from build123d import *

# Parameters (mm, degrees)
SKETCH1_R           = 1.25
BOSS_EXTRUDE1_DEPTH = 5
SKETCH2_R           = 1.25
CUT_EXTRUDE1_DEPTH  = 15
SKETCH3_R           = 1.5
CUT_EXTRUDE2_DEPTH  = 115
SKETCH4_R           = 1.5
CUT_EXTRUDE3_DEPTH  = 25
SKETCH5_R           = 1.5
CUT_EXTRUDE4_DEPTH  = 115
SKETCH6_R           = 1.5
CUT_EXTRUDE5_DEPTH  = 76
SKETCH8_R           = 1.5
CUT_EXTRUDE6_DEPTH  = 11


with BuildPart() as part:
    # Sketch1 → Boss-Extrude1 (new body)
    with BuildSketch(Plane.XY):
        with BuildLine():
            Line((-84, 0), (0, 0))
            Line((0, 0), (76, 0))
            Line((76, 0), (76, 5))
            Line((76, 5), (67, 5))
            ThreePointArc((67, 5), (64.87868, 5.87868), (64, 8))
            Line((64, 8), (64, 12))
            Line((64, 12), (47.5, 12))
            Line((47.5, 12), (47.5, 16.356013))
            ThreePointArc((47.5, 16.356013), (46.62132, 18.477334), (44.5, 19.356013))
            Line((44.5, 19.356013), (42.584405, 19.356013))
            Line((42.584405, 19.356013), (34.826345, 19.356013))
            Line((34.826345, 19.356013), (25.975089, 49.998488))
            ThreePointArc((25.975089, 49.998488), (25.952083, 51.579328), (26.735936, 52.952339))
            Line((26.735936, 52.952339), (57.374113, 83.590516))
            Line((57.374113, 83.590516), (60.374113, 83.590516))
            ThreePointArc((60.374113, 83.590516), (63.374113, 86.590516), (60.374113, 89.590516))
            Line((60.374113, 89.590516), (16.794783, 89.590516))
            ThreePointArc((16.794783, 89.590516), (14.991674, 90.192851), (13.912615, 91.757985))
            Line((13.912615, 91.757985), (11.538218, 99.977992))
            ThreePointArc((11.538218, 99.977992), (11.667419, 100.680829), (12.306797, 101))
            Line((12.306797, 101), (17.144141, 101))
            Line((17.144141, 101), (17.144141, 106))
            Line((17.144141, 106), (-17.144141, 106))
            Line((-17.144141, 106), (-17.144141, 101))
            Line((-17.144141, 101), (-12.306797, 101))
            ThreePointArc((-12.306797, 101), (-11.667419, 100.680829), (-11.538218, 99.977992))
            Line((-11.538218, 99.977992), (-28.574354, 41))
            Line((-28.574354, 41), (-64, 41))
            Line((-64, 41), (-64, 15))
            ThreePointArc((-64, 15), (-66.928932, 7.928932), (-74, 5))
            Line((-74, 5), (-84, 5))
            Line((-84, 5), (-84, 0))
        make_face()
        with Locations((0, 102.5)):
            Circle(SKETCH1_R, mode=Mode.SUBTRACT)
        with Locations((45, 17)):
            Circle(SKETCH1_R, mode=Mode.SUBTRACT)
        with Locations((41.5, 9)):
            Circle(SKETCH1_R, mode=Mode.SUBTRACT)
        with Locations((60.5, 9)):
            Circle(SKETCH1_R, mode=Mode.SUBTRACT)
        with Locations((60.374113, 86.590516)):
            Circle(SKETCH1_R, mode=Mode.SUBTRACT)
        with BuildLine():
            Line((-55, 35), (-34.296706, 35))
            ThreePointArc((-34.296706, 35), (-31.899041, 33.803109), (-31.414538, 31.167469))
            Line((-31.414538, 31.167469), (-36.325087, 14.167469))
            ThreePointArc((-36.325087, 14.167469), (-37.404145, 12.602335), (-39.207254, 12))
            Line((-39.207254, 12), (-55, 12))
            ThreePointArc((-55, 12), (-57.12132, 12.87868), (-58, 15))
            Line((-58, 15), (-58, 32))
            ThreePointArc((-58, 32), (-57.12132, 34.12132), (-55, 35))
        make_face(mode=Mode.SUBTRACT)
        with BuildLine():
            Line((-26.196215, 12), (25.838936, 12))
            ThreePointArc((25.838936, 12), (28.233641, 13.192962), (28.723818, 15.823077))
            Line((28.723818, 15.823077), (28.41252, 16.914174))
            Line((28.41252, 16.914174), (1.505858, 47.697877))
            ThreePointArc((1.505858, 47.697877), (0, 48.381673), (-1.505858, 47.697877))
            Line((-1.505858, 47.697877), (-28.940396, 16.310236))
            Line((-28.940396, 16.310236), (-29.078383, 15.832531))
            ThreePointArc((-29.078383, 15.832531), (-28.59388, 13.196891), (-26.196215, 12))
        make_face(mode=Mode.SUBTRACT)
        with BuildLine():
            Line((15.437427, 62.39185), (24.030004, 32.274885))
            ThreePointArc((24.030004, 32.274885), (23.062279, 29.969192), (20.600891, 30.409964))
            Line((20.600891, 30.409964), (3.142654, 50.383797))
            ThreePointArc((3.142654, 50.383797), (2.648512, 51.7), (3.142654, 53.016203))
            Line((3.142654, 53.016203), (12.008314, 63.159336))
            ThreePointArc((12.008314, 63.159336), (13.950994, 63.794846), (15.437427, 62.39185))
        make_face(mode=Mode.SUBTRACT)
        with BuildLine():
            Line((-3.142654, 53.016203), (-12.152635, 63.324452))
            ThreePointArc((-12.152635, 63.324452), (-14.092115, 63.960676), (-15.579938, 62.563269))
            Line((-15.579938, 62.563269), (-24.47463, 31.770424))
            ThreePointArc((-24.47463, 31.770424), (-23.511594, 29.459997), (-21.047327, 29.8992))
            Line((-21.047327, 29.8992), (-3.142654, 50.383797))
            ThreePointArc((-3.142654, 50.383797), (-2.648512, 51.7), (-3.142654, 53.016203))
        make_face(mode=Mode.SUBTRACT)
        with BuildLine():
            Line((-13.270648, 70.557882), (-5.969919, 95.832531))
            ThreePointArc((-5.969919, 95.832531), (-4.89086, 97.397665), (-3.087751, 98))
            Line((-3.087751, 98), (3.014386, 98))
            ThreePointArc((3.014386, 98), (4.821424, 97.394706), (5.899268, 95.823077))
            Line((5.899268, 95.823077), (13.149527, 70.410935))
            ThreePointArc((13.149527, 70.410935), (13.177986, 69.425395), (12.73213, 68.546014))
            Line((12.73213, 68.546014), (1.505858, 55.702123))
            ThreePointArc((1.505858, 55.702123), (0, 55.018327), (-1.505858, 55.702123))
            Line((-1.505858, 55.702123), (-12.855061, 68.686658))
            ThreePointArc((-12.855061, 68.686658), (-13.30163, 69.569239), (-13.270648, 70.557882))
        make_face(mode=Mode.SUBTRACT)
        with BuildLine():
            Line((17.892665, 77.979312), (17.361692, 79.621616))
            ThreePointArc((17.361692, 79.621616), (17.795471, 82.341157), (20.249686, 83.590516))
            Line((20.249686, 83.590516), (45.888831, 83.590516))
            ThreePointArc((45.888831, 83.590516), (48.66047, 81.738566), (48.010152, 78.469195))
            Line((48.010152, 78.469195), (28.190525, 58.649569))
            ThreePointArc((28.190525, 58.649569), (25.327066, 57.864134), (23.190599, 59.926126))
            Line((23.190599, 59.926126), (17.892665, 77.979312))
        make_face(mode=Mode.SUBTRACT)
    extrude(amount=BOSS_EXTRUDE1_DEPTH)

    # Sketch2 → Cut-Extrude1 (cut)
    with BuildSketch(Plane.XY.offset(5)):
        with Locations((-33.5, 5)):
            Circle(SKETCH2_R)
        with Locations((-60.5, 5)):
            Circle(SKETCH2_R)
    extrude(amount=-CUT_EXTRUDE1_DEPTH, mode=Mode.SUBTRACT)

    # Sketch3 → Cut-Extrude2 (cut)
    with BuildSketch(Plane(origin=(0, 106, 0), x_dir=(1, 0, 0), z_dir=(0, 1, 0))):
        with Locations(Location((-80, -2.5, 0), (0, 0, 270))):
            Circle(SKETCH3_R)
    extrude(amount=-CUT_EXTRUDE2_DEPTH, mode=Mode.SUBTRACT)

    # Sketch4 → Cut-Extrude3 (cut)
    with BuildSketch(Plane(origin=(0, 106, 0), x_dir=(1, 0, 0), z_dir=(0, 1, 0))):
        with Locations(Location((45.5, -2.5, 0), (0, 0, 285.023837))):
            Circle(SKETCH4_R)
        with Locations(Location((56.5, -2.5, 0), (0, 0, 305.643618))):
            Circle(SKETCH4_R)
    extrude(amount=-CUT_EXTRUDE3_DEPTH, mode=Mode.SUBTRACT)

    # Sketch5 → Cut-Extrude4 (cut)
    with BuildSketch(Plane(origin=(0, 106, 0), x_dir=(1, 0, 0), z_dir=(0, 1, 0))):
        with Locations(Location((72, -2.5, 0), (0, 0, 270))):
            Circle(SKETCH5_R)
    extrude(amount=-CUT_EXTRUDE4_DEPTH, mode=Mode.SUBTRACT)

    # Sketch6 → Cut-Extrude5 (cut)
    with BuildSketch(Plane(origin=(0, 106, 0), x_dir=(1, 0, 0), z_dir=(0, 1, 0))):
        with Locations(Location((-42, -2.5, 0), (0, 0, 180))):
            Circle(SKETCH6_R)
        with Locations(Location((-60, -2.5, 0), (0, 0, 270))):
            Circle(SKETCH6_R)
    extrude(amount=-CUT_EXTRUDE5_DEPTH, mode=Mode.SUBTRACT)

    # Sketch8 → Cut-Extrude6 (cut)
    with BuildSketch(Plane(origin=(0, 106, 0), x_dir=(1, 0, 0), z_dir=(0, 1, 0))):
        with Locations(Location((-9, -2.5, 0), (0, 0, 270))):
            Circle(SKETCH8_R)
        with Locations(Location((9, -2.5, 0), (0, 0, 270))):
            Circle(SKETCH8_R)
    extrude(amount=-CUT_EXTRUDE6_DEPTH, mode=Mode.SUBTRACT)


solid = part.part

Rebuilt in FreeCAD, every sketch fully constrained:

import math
import FreeCAD as App
import Part
import Sketcher

V = App.Vector

doc = App.newDocument("Part")
body = doc.addObject("PartDesign::Body", "Body")

sketch1 = body.newObject("Sketcher::SketchObject", "Sketch")
sketch1.AttachmentSupport = (doc.getObject("XY_Plane"), [""])
sketch1.MapMode = "FlatFace"
sketch1.addGeometry([
    Part.LineSegment(V(-84, 0, 0), V(76, 0, 0)),
    Part.LineSegment(V(76, 0, 0), V(76, 5, 0)),
    Part.LineSegment(V(76, 5, 0), V(67, 5, 0)),
    Part.ArcOfCircle(Part.Circle(V(67.000001, 8.000001, 0), V(0, 0, 1), 3.000001), math.radians(-179.999978), math.radians(-90.000022)),
    Part.LineSegment(V(64, 8, 0), V(64, 12, 0)),
    Part.LineSegment(V(64, 12, 0), V(47.5, 12, 0)),
    Part.LineSegment(V(47.5, 12, 0), V(47.5, 16.356013, 0)),
    Part.ArcOfCircle(Part.Circle(V(44.500001, 16.356014, 0), V(0, 0, 1), 2.999999), math.radians(-0.00001), math.radians(90.00001)),
    Part.LineSegment(V(44.5, 19.356013, 0), V(34.826345, 19.356013, 0)),
    Part.LineSegment(V(34.826345, 19.356013, 0), V(25.975089, 49.998488, 0)),
    Part.ArcOfCircle(Part.Circle(V(28.857255, 50.83102, 0), V(0, 0, 1), 2.999999), math.radians(134.999998), math.radians(196.11169)),
    Part.LineSegment(V(26.735936, 52.952339, 0), V(57.374113, 83.590516, 0)),
    Part.LineSegment(V(57.374113, 83.590516, 0), V(60.374113, 83.590516, 0)),
    Part.ArcOfCircle(Part.Circle(V(60.374113, 86.590516, 0), V(0, 0, 1), 3), math.radians(-90), math.radians(90)),
    Part.LineSegment(V(60.374113, 89.590516, 0), V(16.794783, 89.590516, 0)),
    Part.ArcOfCircle(Part.Circle(V(16.794783, 92.590516, 0), V(0, 0, 1), 3), math.radians(-163.888324), math.radians(-90.000005)),
    Part.LineSegment(V(13.912615, 91.757985, 0), V(11.538218, 99.977992, 0)),
    Part.ArcOfCircle(Part.Circle(V(12.306797, 100.2, 0), V(0, 0, 1), 0.8), math.radians(89.999967), math.radians(196.111626)),
    Part.LineSegment(V(12.306797, 101, 0), V(17.144141, 101, 0)),
    Part.LineSegment(V(17.144141, 101, 0), V(17.144141, 106, 0)),
    Part.LineSegment(V(17.144141, 106, 0), V(-17.144141, 106, 0)),
    Part.LineSegment(V(-17.144141, 106, 0), V(-17.144141, 101, 0)),
    Part.LineSegment(V(-17.144141, 101, 0), V(-12.306797, 101, 0)),
    Part.ArcOfCircle(Part.Circle(V(-12.306797, 100.2, 0), V(0, 0, 1), 0.8), math.radians(-16.111626), math.radians(90.000033)),
    Part.LineSegment(V(-11.538218, 99.977992, 0), V(-28.574354, 41, 0)),
    Part.LineSegment(V(-28.574354, 41, 0), V(-64, 41, 0)),
    Part.LineSegment(V(-64, 41, 0), V(-64, 15, 0)),
    Part.ArcOfCircle(Part.Circle(V(-73.999999, 14.999999, 0), V(0, 0, 1), 9.999999), math.radians(-90.000004), math.radians(0.000004)),
    Part.LineSegment(V(-74, 5, 0), V(-84, 5, 0)),
    Part.LineSegment(V(-84, 5, 0), V(-84, 0, 0)),
    Part.ArcOfCircle(Part.Circle(V(-54.999999, 31.999999, 0), V(0, 0, 1), 3.000001), math.radians(90.000022), math.radians(179.999978)),
    Part.LineSegment(V(-55, 35, 0), V(-34.296706, 35, 0)),
    Part.ArcOfCircle(Part.Circle(V(-34.296706, 32, 0), V(0, 0, 1), 3), math.radians(-16.111665), math.radians(89.999996)),
    Part.LineSegment(V(-31.414538, 31.167469, 0), V(-36.325087, 14.167469, 0)),
    Part.ArcOfCircle(Part.Circle(V(-39.207253, 14.999998, 0), V(0, 0, 1), 2.999998), math.radians(-90.00001), math.radians(-16.111641)),
    Part.LineSegment(V(-39.207254, 12, 0), V(-55, 12, 0)),
    Part.ArcOfCircle(Part.Circle(V(-54.999999, 15.000001, 0), V(0, 0, 1), 3.000001), math.radians(-179.999978), math.radians(-90.000022)),
    Part.LineSegment(V(-58, 15, 0), V(-58, 32, 0)),
    Part.LineSegment(V(25.838936, 12, 0), V(-26.196215, 12, 0)),
    Part.ArcOfCircle(Part.Circle(V(-26.196215, 15, 0), V(0, 0, 1), 3), math.radians(163.888335), math.radians(269.999996)),
    Part.LineSegment(V(-29.078383, 15.832531, 0), V(-28.940396, 16.310236, 0)),
    Part.LineSegment(V(-28.940396, 16.310236, 0), V(-1.505858, 47.697877, 0)),
    Part.ArcOfCircle(Part.Circle(V(0, 46.381672, 0), V(0, 0, 1), 2.000001), math.radians(41.155293), math.radians(138.844707)),
    Part.LineSegment(V(1.505858, 47.697877, 0), V(28.41252, 16.914174, 0)),
    Part.LineSegment(V(28.41252, 16.914174, 0), V(28.723818, 15.823077, 0)),
    Part.ArcOfCircle(Part.Circle(V(25.838935, 15, 0), V(0, 0, 1), 3), math.radians(-89.99999), math.radians(15.923809)),
    Part.LineSegment(V(-12.152635, 63.324452, 0), V(-3.142654, 53.016203, 0)),
    Part.ArcOfCircle(Part.Circle(V(-4.648511, 51.7, 0), V(0, 0, 1), 1.999999), math.radians(-41.155277), math.radians(41.155277)),
    Part.LineSegment(V(-3.142654, 50.383797, 0), V(-21.047327, 29.8992, 0)),
    Part.ArcOfCircle(Part.Circle(V(-22.553185, 31.215403, 0), V(0, 0, 1), 2), math.radians(163.888327), math.radians(318.844741)),
    Part.LineSegment(V(-24.47463, 31.770424, 0), V(-15.579938, 62.563269, 0)),
    Part.ArcOfCircle(Part.Circle(V(-13.658493, 62.008249, 0), V(0, 0, 1), 1.999999), math.radians(41.155242), math.radians(163.888358)),
    Part.Circle(V(41.5, 9, 0), V(0, 0, 1), 1.25),
    Part.Circle(V(45, 17, 0), V(0, 0, 1), 1.25),
    Part.Circle(V(60.5, 9, 0), V(0, 0, 1), 1.25),
    Part.ArcOfCircle(Part.Circle(V(13.514172, 61.843132, 0), V(0, 0, 1), 2), math.radians(15.923819), math.radians(138.844724)),
    Part.LineSegment(V(15.437427, 62.39185, 0), V(24.030004, 32.274885, 0)),
    Part.ArcOfCircle(Part.Circle(V(22.106749, 31.726167, 0), V(0, 0, 1), 2), math.radians(-138.84474), math.radians(15.923803)),
    Part.LineSegment(V(20.600891, 30.409964, 0), V(3.142654, 50.383797, 0)),
    Part.ArcOfCircle(Part.Circle(V(4.648511, 51.7, 0), V(0, 0, 1), 1.999999), math.radians(138.844723), math.radians(221.155277)),
    Part.LineSegment(V(3.142654, 53.016203, 0), V(12.008314, 63.159336, 0)),
    Part.ArcOfCircle(Part.Circle(V(-11.349204, 70.002861, 0), V(0, 0, 1), 1.999999), math.radians(163.888314), math.radians(221.155263)),
    Part.LineSegment(V(-13.270648, 70.557882, 0), V(-5.969919, 95.832531, 0)),
    Part.ArcOfCircle(Part.Circle(V(-3.087751, 95, 0), V(0, 0, 1), 3), math.radians(90.000005), math.radians(163.888324)),
    Part.LineSegment(V(-3.087751, 98, 0), V(3.014386, 98, 0)),
    Part.ArcOfCircle(Part.Circle(V(3.014388, 95.000002, 0), V(0, 0, 1), 2.999998), math.radians(15.923788), math.radians(90.00003)),
    Part.LineSegment(V(5.899268, 95.823077, 0), V(13.149527, 70.410935, 0)),
    Part.ArcOfCircle(Part.Circle(V(11.226274, 69.862217, 0), V(0, 0, 1), 1.999998), math.radians(-41.155298), math.radians(15.923828)),
    Part.LineSegment(V(12.73213, 68.546014, 0), V(1.505858, 55.702123, 0)),
    Part.ArcOfCircle(Part.Circle(V(0, 57.018328, 0), V(0, 0, 1), 2.000001), math.radians(-138.844707), math.radians(-41.155293)),
    Part.LineSegment(V(-1.505858, 55.702123, 0), V(-12.855061, 68.686658, 0)),
    Part.Circle(V(0, 102.5, 0), V(0, 0, 1), 1.25),
    Part.LineSegment(V(23.190599, 59.926126, 0), V(17.892665, 77.979312, 0)),
    Part.LineSegment(V(17.892665, 77.979312, 0), V(17.361692, 79.621616, 0)),
    Part.ArcOfCircle(Part.Circle(V(20.249685, 80.555333, 0), V(0, 0, 1), 3.035183), math.radians(89.999985), math.radians(197.916546)),
    Part.LineSegment(V(20.249686, 83.590516, 0), V(45.888831, 83.590516, 0)),
    Part.ArcOfCircle(Part.Circle(V(45.888831, 80.590515, 0), V(0, 0, 1), 3.000001), math.radians(-44.99999), math.radians(89.999998)),
    Part.LineSegment(V(48.010152, 78.469195, 0), V(28.190525, 58.649569, 0)),
    Part.ArcOfCircle(Part.Circle(V(26.069205, 60.77089, 0), V(0, 0, 1), 3), math.radians(-163.645001), math.radians(-45.000012)),
    Part.Circle(V(60.374113, 86.590516, 0), V(0, 0, 1), 1.25),
], False)
sketch1.addConstraint([
    Sketcher.Constraint("Coincident", 0, 2, 1, 1),
    Sketcher.Constraint("Coincident", 1, 2, 2, 1),
    Sketcher.Constraint("Coincident", 2, 2, 3, 2),
    Sketcher.Constraint("Coincident", 3, 1, 4, 1),
    Sketcher.Constraint("Coincident", 4, 2, 5, 1),
    Sketcher.Constraint("Coincident", 5, 2, 6, 1),
    Sketcher.Constraint("Coincident", 6, 2, 7, 1),
    Sketcher.Constraint("Coincident", 7, 2, 8, 1),
    Sketcher.Constraint("Coincident", 8, 2, 9, 1),
    Sketcher.Constraint("Coincident", 9, 2, 10, 2),
    Sketcher.Constraint("Coincident", 10, 1, 11, 1),
    Sketcher.Constraint("Coincident", 11, 2, 12, 1),
    Sketcher.Constraint("Coincident", 12, 2, 13, 1),
    Sketcher.Constraint("Coincident", 13, 2, 14, 1),
    Sketcher.Constraint("Coincident", 14, 2, 15, 2),
    Sketcher.Constraint("Coincident", 15, 1, 16, 1),
    Sketcher.Constraint("Coincident", 16, 2, 17, 2),
    Sketcher.Constraint("Coincident", 17, 1, 18, 1),
    Sketcher.Constraint("Coincident", 18, 2, 19, 1),
    Sketcher.Constraint("Coincident", 19, 2, 20, 1),
    Sketcher.Constraint("Coincident", 20, 2, 21, 1),
    Sketcher.Constraint("Coincident", 21, 2, 22, 1),
    Sketcher.Constraint("Coincident", 22, 2, 23, 2),
    Sketcher.Constraint("Coincident", 23, 1, 24, 1),
    Sketcher.Constraint("Coincident", 24, 2, 25, 1),
    Sketcher.Constraint("Coincident", 25, 2, 26, 1),
    Sketcher.Constraint("Coincident", 26, 2, 27, 2),
    Sketcher.Constraint("Coincident", 27, 1, 28, 1),
    Sketcher.Constraint("Coincident", 28, 2, 29, 1),
    Sketcher.Constraint("Coincident", 29, 2, 0, 1),
    Sketcher.Constraint("Coincident", 30, 1, 31, 1),
    Sketcher.Constraint("Coincident", 31, 2, 32, 2),
    Sketcher.Constraint("Coincident", 32, 1, 33, 1),
    Sketcher.Constraint("Coincident", 33, 2, 34, 2),
    Sketcher.Constraint("Coincident", 34, 1, 35, 1),
    Sketcher.Constraint("Coincident", 35, 2, 36, 2),
    Sketcher.Constraint("Coincident", 36, 1, 37, 1),
    Sketcher.Constraint("Coincident", 37, 2, 30, 2),
    Sketcher.Constraint("Coincident", 38, 2, 39, 2),
    Sketcher.Constraint("Coincident", 39, 1, 40, 1),
    Sketcher.Constraint("Coincident", 40, 2, 41, 1),
    Sketcher.Constraint("Coincident", 41, 2, 42, 2),
    Sketcher.Constraint("Coincident", 42, 1, 43, 1),
    Sketcher.Constraint("Coincident", 43, 2, 44, 1),
    Sketcher.Constraint("Coincident", 44, 2, 45, 2),
    Sketcher.Constraint("Coincident", 45, 1, 38, 1),
    Sketcher.Constraint("Coincident", 46, 2, 47, 2),
    Sketcher.Constraint("Coincident", 47, 1, 48, 1),
    Sketcher.Constraint("Coincident", 48, 2, 49, 2),
    Sketcher.Constraint("Coincident", 49, 1, 50, 1),
    Sketcher.Constraint("Coincident", 50, 2, 51, 2),
    Sketcher.Constraint("Coincident", 51, 1, 46, 1),
    Sketcher.Constraint("Coincident", 55, 1, 56, 1),
    Sketcher.Constraint("Coincident", 56, 2, 57, 2),
    Sketcher.Constraint("Coincident", 57, 1, 58, 1),
    Sketcher.Constraint("Coincident", 58, 2, 59, 2),
    Sketcher.Constraint("Coincident", 59, 1, 60, 1),
    Sketcher.Constraint("Coincident", 60, 2, 55, 2),
    Sketcher.Constraint("Coincident", 61, 1, 62, 1),
    Sketcher.Constraint("Coincident", 62, 2, 63, 2),
    Sketcher.Constraint("Coincident", 63, 1, 64, 1),
    Sketcher.Constraint("Coincident", 64, 2, 65, 2),
    Sketcher.Constraint("Coincident", 65, 1, 66, 1),
    Sketcher.Constraint("Coincident", 66, 2, 67, 2),
    Sketcher.Constraint("Coincident", 67, 1, 68, 1),
    Sketcher.Constraint("Coincident", 68, 2, 69, 2),
    Sketcher.Constraint("Coincident", 69, 1, 70, 1),
    Sketcher.Constraint("Coincident", 70, 2, 61, 2),
    Sketcher.Constraint("Coincident", 72, 2, 73, 1),
    Sketcher.Constraint("Coincident", 73, 2, 74, 2),
    Sketcher.Constraint("Coincident", 74, 1, 75, 1),
    Sketcher.Constraint("Coincident", 75, 2, 76, 2),
    Sketcher.Constraint("Coincident", 76, 1, 77, 1),
    Sketcher.Constraint("Coincident", 77, 2, 78, 2),
    Sketcher.Constraint("Coincident", 78, 1, 72, 1),
    Sketcher.Constraint("Horizontal", 0),
    Sketcher.Constraint("Vertical", 1),
    Sketcher.Constraint("Horizontal", 2),
    Sketcher.Constraint("Vertical", 4),
    Sketcher.Constraint("Horizontal", 5),
    Sketcher.Constraint("Vertical", 6),
    Sketcher.Constraint("Horizontal", 8),
    Sketcher.Constraint("Horizontal", 12),
    Sketcher.Constraint("Horizontal", 14),
    Sketcher.Constraint("Horizontal", 18),
    Sketcher.Constraint("Vertical", 19),
    Sketcher.Constraint("Horizontal", 20),
    Sketcher.Constraint("Vertical", 21),
    Sketcher.Constraint("Horizontal", 22),
    Sketcher.Constraint("Horizontal", 25),
    Sketcher.Constraint("Vertical", 26),
    Sketcher.Constraint("Horizontal", 28),
    Sketcher.Constraint("Vertical", 29),
    Sketcher.Constraint("Horizontal", 31),
    Sketcher.Constraint("Horizontal", 35),
    Sketcher.Constraint("Vertical", 37),
    Sketcher.Constraint("Horizontal", 38),
    Sketcher.Constraint("Horizontal", 64),
    Sketcher.Constraint("Horizontal", 75),
    Sketcher.Constraint("Coincident", 79, 3, 13, 3),
    Sketcher.Constraint("PointOnObject", 42, 3, -2),
    Sketcher.Constraint("PointOnObject", 69, 3, -2),
    Sketcher.Constraint("PointOnObject", 71, 3, -2),
    Sketcher.Constraint("PointOnObject", 0, 2, -1),
    Sketcher.Constraint("Radius", 3, 3.000001),
    Sketcher.Constraint("Radius", 7, 2.999999),
    Sketcher.Constraint("Radius", 10, 2.999999),
    Sketcher.Constraint("Radius", 13, 3.0),
    Sketcher.Constraint("Radius", 15, 3.0),
    Sketcher.Constraint("Radius", 27, 9.999999),
    Sketcher.Constraint("Radius", 30, 3.000001),
    Sketcher.Constraint("Radius", 32, 3.0),
    Sketcher.Constraint("Radius", 34, 2.999998),
    Sketcher.Constraint("Radius", 36, 3.000001),
    Sketcher.Constraint("Radius", 39, 3.0),
    Sketcher.Constraint("Radius", 42, 2.000001),
    Sketcher.Constraint("Radius", 45, 3.0),
    Sketcher.Constraint("Radius", 47, 1.999999),
    Sketcher.Constraint("Radius", 49, 2.0),
    Sketcher.Constraint("Radius", 51, 1.999999),
    Sketcher.Constraint("Radius", 55, 2.0),
    Sketcher.Constraint("Radius", 57, 2.0),
    Sketcher.Constraint("Radius", 59, 1.999999),
    Sketcher.Constraint("Radius", 61, 1.999999),
    Sketcher.Constraint("Radius", 63, 3.0),
    Sketcher.Constraint("Radius", 67, 1.999998),
    Sketcher.Constraint("Radius", 69, 2.000001),
    Sketcher.Constraint("Radius", 76, 3.000001),
    Sketcher.Constraint("Radius", 78, 3.0),
    Sketcher.Constraint("Diameter", 52, 2.5),
    Sketcher.Constraint("Diameter", 53, 2.5),
    Sketcher.Constraint("Diameter", 54, 2.5),
    Sketcher.Constraint("Diameter", 71, 2.5),
    Sketcher.Constraint("Diameter", 79, 2.5),
    Sketcher.Constraint("Radius", 17, 0.8),
    Sketcher.Constraint("Radius", 23, 0.8),
    Sketcher.Constraint("DistanceX", 0, 1, 0, 2, 160.0),
    Sketcher.Constraint("DistanceX", 2, 2, 2, 1, 9.0),
    Sketcher.Constraint("DistanceX", 12, 1, 12, 2, 3.0),
    Sketcher.Constraint("DistanceX", 28, 2, 28, 1, 10.0),
    Sketcher.Constraint("DistanceY", 1, 1, 1, 2, 5.0),
    Sketcher.Constraint("DistanceY", 4, 1, 4, 2, 4.0),
    Sketcher.Constraint("DistanceY", 19, 1, 19, 2, 5.0),
    Sketcher.Constraint("DistanceY", 21, 2, 21, 1, 5.0),
    Sketcher.Constraint("DistanceY", 26, 2, 26, 1, 26.0),
    Sketcher.Constraint("DistanceY", 29, 2, 29, 1, 5.0),
    Sketcher.Constraint("DistanceY", 37, 1, 37, 2, 17.0),
    Sketcher.Constraint("DistanceX", 5, 2, 5, 1, 16.5),
    Sketcher.Constraint("DistanceX", -1, 1, 3, 3, 67.000001),
    Sketcher.Constraint("DistanceX", 27, 3, -1, 1, 73.999999),
    Sketcher.Constraint("DistanceX", 30, 3, -1, 1, 54.999999),
    Sketcher.Constraint("DistanceY", -1, 1, 30, 3, 31.999999),
    Sketcher.Constraint("DistanceY", -1, 1, 34, 3, 14.999998),
    Sketcher.Constraint("DistanceY", -1, 1, 39, 3, 15.0),
    Sketcher.Constraint("DistanceY", -1, 1, 52, 3, 9.0),
    Sketcher.Constraint("DistanceX", -1, 1, 53, 3, 45.0),
    Sketcher.Constraint("DistanceY", -1, 1, 53, 3, 17.0),
    Sketcher.Constraint("DistanceY", -1, 1, 54, 3, 9.0),
    Sketcher.Constraint("DistanceY", -1, 1, 63, 3, 95.0),
    Sketcher.Constraint("DistanceX", -1, 1, 0, 2, 76.0),
    Sketcher.Constraint("DistanceY", -1, 1, 3, 1, 8.0),
    Sketcher.Constraint("DistanceY", -1, 1, 17, 1, 101.0),
    Sketcher.Constraint("DistanceY", -1, 1, 24, 2, 41.0),
    Sketcher.Constraint("DistanceX", 30, 1, -1, 1, 55.0),
    Sketcher.Constraint("DistanceX", 35, 2, -1, 1, 55.0),
    Sketcher.Constraint("DistanceY", -1, 1, 36, 1, 15.0),
    Sketcher.Constraint("DistanceY", -1, 1, 47, 3, 51.7),
    Sketcher.Constraint("DistanceX", -1, 1, 52, 3, 41.5),
    Sketcher.Constraint("DistanceX", -1, 1, 54, 3, 60.5),
    Sketcher.Constraint("DistanceY", -1, 1, 59, 3, 51.7),
    Sketcher.Constraint("DistanceY", -1, 1, 71, 3, 102.5),
    Sketcher.Constraint("DistanceX", -1, 1, 7, 2, 44.5),
    Sketcher.Constraint("Radius", 65, 2.999998),
    Sketcher.Constraint("Radius", 74, 3.035183),
    Sketcher.Constraint("DistanceX", 14, 2, 14, 1, 43.57933),
    Sketcher.Constraint("DistanceX", 38, 2, 38, 1, 52.035151),
    Sketcher.Constraint("DistanceY", -1, 1, 48, 2, 29.8992),
    Sketcher.Constraint("DistanceX", -1, 1, 78, 1, 23.190599),
    Sketcher.Constraint("DistanceX", 8, 2, 8, 1, 9.673655),
    Sketcher.Constraint("DistanceX", 18, 1, 18, 2, 4.837344),
    Sketcher.Constraint("DistanceX", 20, 2, 20, 1, 34.288282),
    Sketcher.Constraint("DistanceX", 22, 1, 22, 2, 4.837344),
    Sketcher.Constraint("DistanceX", 25, 2, 25, 1, 35.425646),
    Sketcher.Constraint("DistanceX", 31, 1, 31, 2, 20.703294),
    Sketcher.Constraint("DistanceX", 35, 2, 35, 1, 15.792746),
    Sketcher.Constraint("DistanceX", 64, 1, 64, 2, 6.102137),
    Sketcher.Constraint("DistanceX", 75, 1, 75, 2, 25.639145),
    Sketcher.Constraint("DistanceY", 6, 1, 6, 2, 4.356013),
    Sketcher.Constraint("DistanceY", -1, 1, 10, 3, 50.83102),
    Sketcher.Constraint("DistanceX", 47, 3, -1, 1, 4.648511),
    Sketcher.Constraint("DistanceY", -1, 1, 51, 3, 62.008249),
    Sketcher.Constraint("DistanceX", -1, 1, 55, 3, 13.514172),
    Sketcher.Constraint("DistanceY", -1, 1, 55, 3, 61.843132),
    Sketcher.Constraint("DistanceX", -1, 1, 57, 3, 22.106749),
    Sketcher.Constraint("DistanceX", -1, 1, 59, 3, 4.648511),
    Sketcher.Constraint("DistanceY", -1, 1, 61, 3, 70.002861),
    Sketcher.Constraint("DistanceX", 63, 3, -1, 1, 3.087751),
    Sketcher.Constraint("DistanceX", -1, 1, 76, 3, 45.888831),
    Sketcher.Constraint("DistanceY", -1, 1, 78, 3, 60.77089),
    Sketcher.Constraint("DistanceX", -1, 1, 9, 2, 25.975089),
    Sketcher.Constraint("DistanceY", -1, 1, 9, 2, 49.998488),
    Sketcher.Constraint("DistanceY", -1, 1, 10, 1, 52.952339),
    Sketcher.Constraint("DistanceY", -1, 1, 16, 2, 99.977992),
    Sketcher.Constraint("DistanceX", -1, 1, 18, 2, 17.144141),
    Sketcher.Constraint("DistanceX", 23, 1, -1, 1, 11.538218),
    Sketcher.Constraint("DistanceX", 32, 1, -1, 1, 31.414538),
    Sketcher.Constraint("DistanceY", -1, 1, 32, 1, 31.167469),
    Sketcher.Constraint("DistanceY", -1, 1, 33, 2, 14.167469),
    Sketcher.Constraint("DistanceY", -1, 1, 39, 1, 15.832531),
    Sketcher.Constraint("DistanceX", -1, 1, 43, 2, 28.41252),
    Sketcher.Constraint("DistanceX", -1, 1, 44, 2, 28.723818),
    Sketcher.Constraint("DistanceX", 49, 1, -1, 1, 24.47463),
    Sketcher.Constraint("DistanceY", -1, 1, 50, 2, 62.563269),
    Sketcher.Constraint("DistanceY", -1, 1, 51, 1, 63.324452),
    Sketcher.Constraint("DistanceY", -1, 1, 55, 1, 62.39185),
    Sketcher.Constraint("DistanceX", -1, 1, 57, 1, 20.600891),
    Sketcher.Constraint("DistanceY", -1, 1, 61, 1, 70.557882),
    Sketcher.Constraint("DistanceX", 62, 2, -1, 1, 5.969919),
    Sketcher.Constraint("DistanceX", 63, 1, -1, 1, 3.087751),
    Sketcher.Constraint("DistanceX", -1, 1, 65, 1, 5.899268),
    Sketcher.Constraint("DistanceX", -1, 1, 67, 1, 12.73213),
    Sketcher.Constraint("DistanceX", 70, 2, -1, 1, 12.855061),
    Sketcher.Constraint("DistanceY", -1, 1, 72, 2, 77.979312),
    Sketcher.Constraint("DistanceX", -1, 1, 75, 2, 45.888831),
    Sketcher.Constraint("DistanceY", -1, 1, 77, 2, 58.649569),
    Sketcher.Constraint("Distance", 9, 31.895235),
    Sketcher.Constraint("Distance", 11, 43.328925),
    Sketcher.Constraint("Distance", 16, 8.556067),
    Sketcher.Constraint("Distance", 24, 61.389197),
    Sketcher.Constraint("Distance", 33, 17.695013),
    Sketcher.Constraint("Distance", 40, 0.497235),
    Sketcher.Constraint("Distance", 41, 41.687383),
    Sketcher.Constraint("Distance", 43, 40.885264),
    Sketcher.Constraint("Distance", 44, 1.134636),
    Sketcher.Constraint("Distance", 46, 13.690864),
    Sketcher.Constraint("Distance", 48, 27.206544),
    Sketcher.Constraint("Distance", 50, 32.051753),
    Sketcher.Constraint("Distance", 56, 31.318748),
    Sketcher.Constraint("Distance", 58, 26.528175),
    Sketcher.Constraint("Distance", 60, 13.471565),
    Sketcher.Constraint("Distance", 62, 26.307956),
    Sketcher.Constraint("Distance", 66, 26.426184),
    Sketcher.Constraint("Distance", 68, 17.058567),
    Sketcher.Constraint("Distance", 70, 17.245363),
    Sketcher.Constraint("Distance", 72, 18.814506),
    Sketcher.Constraint("Distance", 73, 1.726005),
    Sketcher.Constraint("Distance", 77, 28.029185),
    Sketcher.Constraint("DistanceX", -1, 1, 13, 3, 60.374113),
    Sketcher.Constraint("DistanceY", -1, 1, 13, 3, 86.590516),
    Sketcher.Constraint("DistanceX", -1, 1, 15, 3, 16.794783),
    Sketcher.Constraint("DistanceX", -1, 1, 17, 3, 12.306797),
    Sketcher.Constraint("DistanceX", 39, 3, -1, 1, 26.196215),
    Sketcher.Constraint("DistanceY", -1, 1, 42, 3, 46.381672),
    Sketcher.Constraint("DistanceX", -1, 1, 45, 3, 25.838935),
    Sketcher.Constraint("DistanceX", 49, 3, -1, 1, 22.553185),
    Sketcher.Constraint("DistanceY", -1, 1, 49, 3, 31.215403),
    Sketcher.Constraint("DistanceY", -1, 1, 57, 3, 31.726167),
    Sketcher.Constraint("DistanceX", -1, 1, 65, 3, 3.014388),
    Sketcher.Constraint("DistanceX", -1, 1, 67, 3, 11.226274),
    Sketcher.Constraint("DistanceY", -1, 1, 67, 3, 69.862217),
    Sketcher.Constraint("DistanceY", -1, 1, 69, 3, 57.018328),
    Sketcher.Constraint("DistanceX", -1, 1, 74, 3, 20.249685),
    Sketcher.Constraint("DistanceY", -1, 1, 74, 3, 80.555333),
    Sketcher.Constraint("DistanceX", -1, 1, 78, 3, 26.069205),
    Sketcher.Constraint("DistanceX", -1, 1, 13, 2, 60.374113),
    Sketcher.Constraint("DistanceX", 38, 2, -1, 1, 26.196215),
    Sketcher.Constraint("DistanceX", 40, 2, -1, 1, 28.940396),
    Sketcher.Constraint("DistanceX", -1, 1, 59, 1, 3.142654),
])
pad1 = body.newObject("PartDesign::Pad", "Pad")
pad1.Profile = sketch1
pad1.Length = 5

sketch2 = body.newObject("Sketcher::SketchObject", "Sketch001")
sketch2.AttachmentSupport = (doc.getObject("XY_Plane"), [""])
sketch2.MapMode = "FlatFace"
sketch2.AttachmentOffset = App.Placement(V(0, 0, 5), App.Rotation())
sketch2.addGeometry([
    Part.Circle(V(-33.5, 5, 0), V(0, 0, 1), 1.2),
    Part.Circle(V(-60.5, 5, 0), V(0, 0, 1), 1.2),
], False)
sketch2.addConstraint([
    Sketcher.Constraint("Equal", 0, 1),
    Sketcher.Constraint("Horizontal", 0, 3, 1, 3),
    Sketcher.Constraint("Diameter", 0, 2.5),
    Sketcher.Constraint("DistanceY", -1, 1, 0, 3, 5.0),
    Sketcher.Constraint("DistanceX", 1, 3, 0, 3, 27.0),
    Sketcher.Constraint("DistanceX", 0, 3, -1, 1, 33.5),
])
pocket1 = body.newObject("PartDesign::Pocket", "Pocket")
pocket1.Profile = sketch2
pocket1.Length = 15

sketch3 = body.newObject("Sketcher::SketchObject", "Sketch002")
sketch3.AttachmentSupport = (doc.getObject("XZ_Plane"), [""])
sketch3.MapMode = "FlatFace"
sketch3.AttachmentOffset = App.Placement(V(0, 0, -106), App.Rotation())
sketch3.addGeometry(Part.Circle(V(-80, 2.5, 0), V(0, 0, 1), 1.5), False)
sketch3.addConstraint([
    Sketcher.Constraint("Diameter", 0, 3.0),
    Sketcher.Constraint("DistanceX", 0, 3, -1, 1, 80.0),
    Sketcher.Constraint("DistanceY", -1, 1, 0, 3, 2.5),
])
pocket2 = body.newObject("PartDesign::Pocket", "Pocket001")
pocket2.Profile = sketch3
pocket2.Length = 115
pocket2.Reversed = True

sketch4 = body.newObject("Sketcher::SketchObject", "Sketch003")
sketch4.AttachmentSupport = (doc.getObject("XZ_Plane"), [""])
sketch4.MapMode = "FlatFace"
sketch4.AttachmentOffset = App.Placement(V(0, 0, -106), App.Rotation())
sketch4.addGeometry([
    Part.Circle(V(45.5, 2.5, 0), V(0, 0, 1), 1.5),
    Part.Circle(V(56.5, 2.5, 0), V(0, 0, 1), 1.5),
], False)
sketch4.addConstraint([
    Sketcher.Constraint("Equal", 0, 1),
    Sketcher.Constraint("Horizontal", 0, 3, 1, 3),
    Sketcher.Constraint("Diameter", 0, 3.0),
    Sketcher.Constraint("DistanceX", 0, 3, 1, 3, 11.0),
    Sketcher.Constraint("DistanceX", -1, 1, 0, 3, 45.5),
    Sketcher.Constraint("DistanceY", -1, 1, 0, 3, 2.5),
])
pocket3 = body.newObject("PartDesign::Pocket", "Pocket002")
pocket3.Profile = sketch4
pocket3.Length = 25
pocket3.Reversed = True

sketch5 = body.newObject("Sketcher::SketchObject", "Sketch004")
sketch5.AttachmentSupport = (doc.getObject("XZ_Plane"), [""])
sketch5.MapMode = "FlatFace"
sketch5.AttachmentOffset = App.Placement(V(0, 0, -106), App.Rotation())
sketch5.addGeometry(Part.Circle(V(72, 2.5, 0), V(0, 0, 1), 1.5), False)
sketch5.addConstraint([
    Sketcher.Constraint("Diameter", 0, 3.0),
    Sketcher.Constraint("DistanceX", -1, 1, 0, 3, 72.0),
    Sketcher.Constraint("DistanceY", -1, 1, 0, 3, 2.5),
])
pocket4 = body.newObject("PartDesign::Pocket", "Pocket003")
pocket4.Profile = sketch5
pocket4.Length = 115
pocket4.Reversed = True

sketch6 = body.newObject("Sketcher::SketchObject", "Sketch005")
sketch6.AttachmentSupport = (doc.getObject("XZ_Plane"), [""])
sketch6.MapMode = "FlatFace"
sketch6.AttachmentOffset = App.Placement(V(0, 0, -106), App.Rotation())
sketch6.addGeometry([
    Part.Circle(V(-42, 2.5, 0), V(0, 0, 1), 1.5),
    Part.Circle(V(-60, 2.5, 0), V(0, 0, 1), 1.5),
], False)
sketch6.addConstraint([
    Sketcher.Constraint("Equal", 0, 1),
    Sketcher.Constraint("Horizontal", 0, 3, 1, 3),
    Sketcher.Constraint("Diameter", 0, 3.0),
    Sketcher.Constraint("DistanceX", 0, 3, -1, 1, 42.0),
    Sketcher.Constraint("DistanceX", 1, 3, -1, 1, 60.0),
    Sketcher.Constraint("DistanceY", -1, 1, 0, 3, 2.5),
])
pocket5 = body.newObject("PartDesign::Pocket", "Pocket004")
pocket5.Profile = sketch6
pocket5.Length = 76
pocket5.Reversed = True

sketch7 = body.newObject("Sketcher::SketchObject", "Sketch006")
sketch7.AttachmentSupport = (doc.getObject("XZ_Plane"), [""])
sketch7.MapMode = "FlatFace"
sketch7.AttachmentOffset = App.Placement(V(0, 0, -106), App.Rotation())
sketch7.addGeometry([
    Part.Circle(V(-9, 2.5, 0), V(0, 0, 1), 1.5),
    Part.Circle(V(9, 2.5, 0), V(0, 0, 1), 1.5),
], False)
sketch7.addConstraint([
    Sketcher.Constraint("Equal", 0, 1),
    Sketcher.Constraint("Symmetric", 0, 3, 1, 3, -2),
    Sketcher.Constraint("Diameter", 0, 3.0),
    Sketcher.Constraint("DistanceX", 0, 3, -1, 1, 9.0),
    Sketcher.Constraint("DistanceY", -1, 1, 0, 3, 2.5),
])
pocket6 = body.newObject("PartDesign::Pocket", "Pocket005")
pocket6.Profile = sketch7
pocket6.Length = 11
pocket6.Reversed = True

doc.recompute()
